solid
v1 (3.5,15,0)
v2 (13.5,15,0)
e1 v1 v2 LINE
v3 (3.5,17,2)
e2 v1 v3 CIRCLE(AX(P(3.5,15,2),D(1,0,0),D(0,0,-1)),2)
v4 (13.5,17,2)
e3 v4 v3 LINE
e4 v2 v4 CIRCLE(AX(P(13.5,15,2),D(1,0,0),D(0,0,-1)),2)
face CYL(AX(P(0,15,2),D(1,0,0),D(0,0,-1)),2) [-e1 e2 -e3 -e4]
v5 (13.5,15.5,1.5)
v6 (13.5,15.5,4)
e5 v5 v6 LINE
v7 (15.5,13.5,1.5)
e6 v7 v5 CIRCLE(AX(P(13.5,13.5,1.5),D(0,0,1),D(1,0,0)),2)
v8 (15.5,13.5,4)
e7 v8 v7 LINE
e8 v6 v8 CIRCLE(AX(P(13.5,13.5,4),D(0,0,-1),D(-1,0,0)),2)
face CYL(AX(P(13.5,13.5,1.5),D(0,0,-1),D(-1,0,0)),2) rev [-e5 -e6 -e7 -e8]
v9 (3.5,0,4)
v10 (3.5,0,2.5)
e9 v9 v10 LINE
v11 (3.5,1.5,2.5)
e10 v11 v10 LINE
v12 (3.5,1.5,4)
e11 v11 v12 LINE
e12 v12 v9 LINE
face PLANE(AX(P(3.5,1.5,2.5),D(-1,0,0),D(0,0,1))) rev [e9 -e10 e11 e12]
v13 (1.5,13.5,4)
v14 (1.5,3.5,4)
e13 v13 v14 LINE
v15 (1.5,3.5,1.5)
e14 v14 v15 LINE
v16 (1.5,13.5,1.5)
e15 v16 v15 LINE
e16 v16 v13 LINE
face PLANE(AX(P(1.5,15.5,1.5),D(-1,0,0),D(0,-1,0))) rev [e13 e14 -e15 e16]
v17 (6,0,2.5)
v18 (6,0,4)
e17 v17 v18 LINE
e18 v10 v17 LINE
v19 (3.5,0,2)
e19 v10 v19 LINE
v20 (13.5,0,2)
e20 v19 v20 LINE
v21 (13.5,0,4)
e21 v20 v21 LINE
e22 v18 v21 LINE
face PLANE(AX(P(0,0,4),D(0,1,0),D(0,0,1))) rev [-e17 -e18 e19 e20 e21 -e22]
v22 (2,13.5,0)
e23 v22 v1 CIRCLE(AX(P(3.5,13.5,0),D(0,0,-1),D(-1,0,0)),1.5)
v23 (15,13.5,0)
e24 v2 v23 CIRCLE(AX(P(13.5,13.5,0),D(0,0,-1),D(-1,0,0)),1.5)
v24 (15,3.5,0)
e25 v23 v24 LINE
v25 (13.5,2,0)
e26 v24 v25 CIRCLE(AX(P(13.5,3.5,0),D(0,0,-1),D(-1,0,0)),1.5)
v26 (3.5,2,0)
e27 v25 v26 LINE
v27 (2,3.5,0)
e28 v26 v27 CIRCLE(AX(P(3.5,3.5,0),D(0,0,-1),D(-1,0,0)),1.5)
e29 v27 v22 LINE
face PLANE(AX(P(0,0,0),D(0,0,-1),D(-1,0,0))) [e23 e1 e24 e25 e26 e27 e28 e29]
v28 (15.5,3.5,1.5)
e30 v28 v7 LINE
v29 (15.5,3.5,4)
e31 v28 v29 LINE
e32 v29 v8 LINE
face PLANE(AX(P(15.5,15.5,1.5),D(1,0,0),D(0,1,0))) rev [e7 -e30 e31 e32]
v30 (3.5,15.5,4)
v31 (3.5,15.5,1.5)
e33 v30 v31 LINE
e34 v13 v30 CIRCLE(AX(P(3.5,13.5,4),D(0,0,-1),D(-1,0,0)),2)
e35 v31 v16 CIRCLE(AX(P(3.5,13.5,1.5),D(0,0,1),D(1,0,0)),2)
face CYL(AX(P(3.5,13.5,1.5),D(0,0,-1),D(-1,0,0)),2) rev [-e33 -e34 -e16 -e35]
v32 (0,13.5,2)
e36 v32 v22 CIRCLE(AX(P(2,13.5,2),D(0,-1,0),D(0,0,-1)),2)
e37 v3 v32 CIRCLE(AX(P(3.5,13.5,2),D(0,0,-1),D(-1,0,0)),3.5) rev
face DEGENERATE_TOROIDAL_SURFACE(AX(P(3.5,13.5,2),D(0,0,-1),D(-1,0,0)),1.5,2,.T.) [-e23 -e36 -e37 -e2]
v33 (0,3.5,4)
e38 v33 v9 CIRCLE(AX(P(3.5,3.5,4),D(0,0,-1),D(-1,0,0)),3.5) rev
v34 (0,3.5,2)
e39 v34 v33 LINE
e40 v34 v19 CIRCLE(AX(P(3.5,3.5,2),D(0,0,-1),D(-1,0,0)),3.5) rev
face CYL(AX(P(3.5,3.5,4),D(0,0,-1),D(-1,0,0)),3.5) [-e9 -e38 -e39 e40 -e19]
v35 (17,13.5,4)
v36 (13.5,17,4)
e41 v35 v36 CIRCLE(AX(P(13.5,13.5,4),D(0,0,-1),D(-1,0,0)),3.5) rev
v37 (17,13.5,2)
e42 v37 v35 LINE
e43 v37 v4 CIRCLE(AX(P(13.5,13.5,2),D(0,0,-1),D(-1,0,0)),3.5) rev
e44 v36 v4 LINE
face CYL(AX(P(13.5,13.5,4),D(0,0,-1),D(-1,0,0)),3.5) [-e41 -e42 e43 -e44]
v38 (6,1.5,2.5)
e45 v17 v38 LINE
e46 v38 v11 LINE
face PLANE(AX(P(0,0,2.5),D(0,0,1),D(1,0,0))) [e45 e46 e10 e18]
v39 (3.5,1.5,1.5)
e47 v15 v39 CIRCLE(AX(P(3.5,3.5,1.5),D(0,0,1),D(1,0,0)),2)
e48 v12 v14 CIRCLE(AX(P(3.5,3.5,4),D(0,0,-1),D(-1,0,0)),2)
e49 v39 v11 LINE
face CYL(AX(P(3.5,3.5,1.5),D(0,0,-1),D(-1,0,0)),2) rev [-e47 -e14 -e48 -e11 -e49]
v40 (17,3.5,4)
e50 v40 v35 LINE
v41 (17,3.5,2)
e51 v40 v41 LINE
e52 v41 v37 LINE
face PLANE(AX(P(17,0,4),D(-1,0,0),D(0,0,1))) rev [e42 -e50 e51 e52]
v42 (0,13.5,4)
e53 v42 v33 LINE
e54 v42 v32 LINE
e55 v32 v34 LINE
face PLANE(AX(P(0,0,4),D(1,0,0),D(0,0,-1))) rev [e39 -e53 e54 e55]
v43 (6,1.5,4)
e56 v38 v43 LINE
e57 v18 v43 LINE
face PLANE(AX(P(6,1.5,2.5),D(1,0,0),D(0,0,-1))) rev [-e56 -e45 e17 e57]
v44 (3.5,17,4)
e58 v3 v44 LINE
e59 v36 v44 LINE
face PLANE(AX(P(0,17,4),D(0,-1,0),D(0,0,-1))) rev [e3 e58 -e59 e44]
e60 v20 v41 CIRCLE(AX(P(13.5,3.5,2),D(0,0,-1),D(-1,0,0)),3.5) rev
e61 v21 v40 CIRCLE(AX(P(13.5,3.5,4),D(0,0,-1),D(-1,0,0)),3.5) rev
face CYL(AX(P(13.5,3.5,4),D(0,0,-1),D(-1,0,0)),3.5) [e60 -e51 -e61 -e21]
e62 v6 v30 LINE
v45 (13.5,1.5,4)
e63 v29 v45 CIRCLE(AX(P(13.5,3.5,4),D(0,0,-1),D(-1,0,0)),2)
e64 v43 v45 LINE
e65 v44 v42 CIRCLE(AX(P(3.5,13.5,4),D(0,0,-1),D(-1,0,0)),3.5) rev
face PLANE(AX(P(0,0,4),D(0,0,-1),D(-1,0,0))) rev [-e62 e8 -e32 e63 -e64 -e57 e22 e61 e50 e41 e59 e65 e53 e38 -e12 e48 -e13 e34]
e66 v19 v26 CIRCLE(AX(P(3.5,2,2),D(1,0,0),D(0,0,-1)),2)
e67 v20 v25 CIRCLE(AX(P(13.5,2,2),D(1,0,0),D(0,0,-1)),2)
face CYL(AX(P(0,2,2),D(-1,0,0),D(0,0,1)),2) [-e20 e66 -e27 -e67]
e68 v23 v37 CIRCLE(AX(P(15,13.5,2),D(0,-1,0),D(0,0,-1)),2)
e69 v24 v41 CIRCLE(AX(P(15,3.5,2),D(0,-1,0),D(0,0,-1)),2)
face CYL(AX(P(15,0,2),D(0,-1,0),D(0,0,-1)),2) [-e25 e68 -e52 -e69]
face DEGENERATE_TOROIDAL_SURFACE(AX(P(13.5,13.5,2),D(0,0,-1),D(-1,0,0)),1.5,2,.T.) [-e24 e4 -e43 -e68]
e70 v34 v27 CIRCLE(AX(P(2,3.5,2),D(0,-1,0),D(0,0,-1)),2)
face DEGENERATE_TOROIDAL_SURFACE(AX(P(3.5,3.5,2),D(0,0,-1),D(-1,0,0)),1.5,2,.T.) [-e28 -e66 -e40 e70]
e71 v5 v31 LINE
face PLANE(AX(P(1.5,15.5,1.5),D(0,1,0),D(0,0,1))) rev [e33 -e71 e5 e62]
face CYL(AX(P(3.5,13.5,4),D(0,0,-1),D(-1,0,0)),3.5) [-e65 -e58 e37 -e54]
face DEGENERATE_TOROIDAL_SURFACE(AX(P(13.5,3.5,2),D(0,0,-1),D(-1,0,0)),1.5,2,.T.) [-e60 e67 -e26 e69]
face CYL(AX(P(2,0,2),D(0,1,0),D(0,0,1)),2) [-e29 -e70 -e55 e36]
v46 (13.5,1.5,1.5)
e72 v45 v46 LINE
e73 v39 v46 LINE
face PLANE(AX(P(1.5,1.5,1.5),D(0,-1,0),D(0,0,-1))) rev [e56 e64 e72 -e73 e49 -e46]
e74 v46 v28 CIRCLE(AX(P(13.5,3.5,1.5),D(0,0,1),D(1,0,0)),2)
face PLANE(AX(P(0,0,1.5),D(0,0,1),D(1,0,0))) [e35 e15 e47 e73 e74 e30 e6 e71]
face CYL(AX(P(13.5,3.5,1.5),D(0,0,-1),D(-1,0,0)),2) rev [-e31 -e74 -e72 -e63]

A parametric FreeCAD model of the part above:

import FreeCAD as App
import Part
import Sketcher

V = App.Vector
Q = App.Units.Quantity


def edges_at(feature, points):
    """Names of the edges that pass closest to the given points."""
    edges = feature.Shape.Edges
    near = lambda p: min(range(len(edges)), key=lambda i: edges[i].distToShape(Part.Vertex(*p))[0])
    return sorted({f"Edge{near(p) + 1}" for p in points})


def add_polygon(sketch, points):
    """Adds a closed chain of lines whose ends are joined by coincident constraints."""
    first, n = sketch.GeometryCount, len(points)
    for a, b in zip(points, points[1:] + points[:1]):
        sketch.addGeometry(Part.LineSegment(App.Vector(*a, 0), App.Vector(*b, 0)), False)
    for i in range(n):
        sketch.addConstraint(Sketcher.Constraint("Coincident", first + i, 2, first + (i + 1) % n, 1))

doc = App.newDocument("Part")
params = doc.addObject("Spreadsheet::Sheet", "Params")
for row, (alias, value) in enumerate([
    ("sketch1_width", "17 mm"),
    ("pad1_length", "4 mm"),
    ("sketch2_width", "14 mm"),
    ("pocket1_length", "2.5 mm"),
    ("fillet_radius", "2 mm"),
    ("fillet2_radius", "3.5 mm"),
    ("sketch3_width", "2.5 mm"),
    ("sketch3_height", "1.5 mm"),
    ("pocket2_length", "1.5 mm"),
    ("fillet3_radius", "2 mm"),
], start=1):
    params.set(f"A{row}", alias)
    params.set(f"B{row}", "=" + value)
    params.setAlias(f"B{row}", alias)

body = doc.addObject("PartDesign::Body", "Body")

sketch1 = doc.addObject("Sketcher::SketchObject", "Sketch")
body.addObject(sketch1)
sketch1.AttachmentSupport = (doc.XY_Plane, [""])
sketch1.MapMode = "FlatFace"
add_polygon(sketch1, [(0, 17), (0, 0), (17, 0), (17, 17)])
sketch1.addConstraint([
    Sketcher.Constraint("Vertical", 0),
    Sketcher.Constraint("Horizontal", 1),
    Sketcher.Constraint("Vertical", 2),
    Sketcher.Constraint("Horizontal", 3),
    Sketcher.Constraint("Coincident", 0, 2, -1, 1),
    Sketcher.Constraint("Equal", 3, 0),
    Sketcher.Constraint("DistanceX", 1, 1, 1, 2, Q("17 mm")),
])
sketch1.setExpression("Constraints[10]", "Params.sketch1_width")
pad1 = doc.addObject("PartDesign::Pad", "Pad")
body.addObject(pad1)
pad1.Profile = sketch1
pad1.setExpression("Length", "Params.pad1_length")

sketch2 = doc.addObject("Sketcher::SketchObject", "Sketch001")
body.addObject(sketch2)
sketch2.AttachmentSupport = (doc.XY_Plane, [""])
sketch2.MapMode = "FlatFace"
sketch2.AttachmentOffset = App.Placement(V(0, 0, 4), App.Rotation())
add_polygon(sketch2, [(1.5, 15.5), (1.5, 1.5), (15.5, 1.5), (15.5, 15.5)])
sketch2.addConstraint([
    Sketcher.Constraint("Vertical", 0),
    Sketcher.Constraint("Horizontal", 1),
    Sketcher.Constraint("Vertical", 2),
    Sketcher.Constraint("Horizontal", 3),
    Sketcher.Constraint("Equal", 3, 0),
    Sketcher.Constraint("DistanceX", 1, 1, 1, 2, Q("14 mm")),
    Sketcher.Constraint("DistanceX", -1, 1, 0, 2, Q("1.5 mm")),
    Sketcher.Constraint("DistanceY", -1, 1, 0, 2, Q("1.5 mm")),
])
sketch2.setExpression("Constraints[9]", "Params.sketch2_width")
pocket1 = doc.addObject("PartDesign::Pocket", "Pocket")
body.addObject(pocket1)
pocket1.Profile = sketch2
pocket1.setExpression("Length", "Params.pocket1_length")
doc.recompute()

fillet = doc.addObject("PartDesign::Fillet", "Fillet")
body.addObject(fillet)
fillet.Base = (pocket1, edges_at(pocket1, [
    (1.5, 1.5, 2.75),
    (1.5, 15.5, 2.75),
    (15.5, 15.5, 2.75),
    (15.5, 1.5, 2.75),
]))
fillet.setExpression("Radius", "Params.fillet_radius")
doc.recompute()

fillet2 = doc.addObject("PartDesign::Fillet", "Fillet001")
body.addObject(fillet2)
fillet2.Base = (fillet, edges_at(fillet, [
    (0, 17, 2),
    (17, 17, 2),
    (17, 0, 2),
    (0, 0, 2),
]))
fillet2.setExpression("Radius", "Params.fillet2_radius")

sketch3 = doc.addObject("Sketcher::SketchObject", "Sketch002")
body.addObject(sketch3)
sketch3.AttachmentSupport = (doc.XY_Plane, [""])
sketch3.MapMode = "FlatFace"
sketch3.AttachmentOffset = App.Placement(V(0, 0, 4), App.Rotation())
add_polygon(sketch3, [(3.5, 1.5), (3.5, 0), (6, 0), (6, 1.5)])
sketch3.addConstraint([
    Sketcher.Constraint("Vertical", 0),
    Sketcher.Constraint("Horizontal", 1),
    Sketcher.Constraint("Vertical", 2),
    Sketcher.Constraint("Horizontal", 3),
    Sketcher.Constraint("PointOnObject", 0, 2, -1),
    Sketcher.Constraint("DistanceX", 1, 1, 1, 2, Q("2.5 mm")),
    Sketcher.Constraint("DistanceY", 0, 2, 0, 1, Q("1.5 mm")),
    Sketcher.Constraint("DistanceX", -1, 1, 1, 2, Q("6 mm")),
])
sketch3.setExpression("Constraints[9]", "Params.sketch3_width")
sketch3.setExpression("Constraints[10]", "Params.sketch3_height")
pocket2 = doc.addObject("PartDesign::Pocket", "Pocket001")
body.addObject(pocket2)
pocket2.Profile = sketch3
pocket2.setExpression("Length", "Params.pocket2_length")
doc.recompute()

fillet3 = doc.addObject("PartDesign::Fillet", "Fillet002")
body.addObject(fillet3)
fillet3.Base = (pocket2, edges_at(pocket2, [
    (17, 8.5, 0),
    (0, 8.5, 0),
    (8.5, 17, 0),
    (8.5, 0, 0),
    (1.025, 15.975, 0),
    (15.975, 15.975, 0),
    (1.025, 1.025, 0),
    (15.975, 1.025, 0),
]))
fillet3.setExpression("Radius", "Params.fillet3_radius")

doc.recompute()
